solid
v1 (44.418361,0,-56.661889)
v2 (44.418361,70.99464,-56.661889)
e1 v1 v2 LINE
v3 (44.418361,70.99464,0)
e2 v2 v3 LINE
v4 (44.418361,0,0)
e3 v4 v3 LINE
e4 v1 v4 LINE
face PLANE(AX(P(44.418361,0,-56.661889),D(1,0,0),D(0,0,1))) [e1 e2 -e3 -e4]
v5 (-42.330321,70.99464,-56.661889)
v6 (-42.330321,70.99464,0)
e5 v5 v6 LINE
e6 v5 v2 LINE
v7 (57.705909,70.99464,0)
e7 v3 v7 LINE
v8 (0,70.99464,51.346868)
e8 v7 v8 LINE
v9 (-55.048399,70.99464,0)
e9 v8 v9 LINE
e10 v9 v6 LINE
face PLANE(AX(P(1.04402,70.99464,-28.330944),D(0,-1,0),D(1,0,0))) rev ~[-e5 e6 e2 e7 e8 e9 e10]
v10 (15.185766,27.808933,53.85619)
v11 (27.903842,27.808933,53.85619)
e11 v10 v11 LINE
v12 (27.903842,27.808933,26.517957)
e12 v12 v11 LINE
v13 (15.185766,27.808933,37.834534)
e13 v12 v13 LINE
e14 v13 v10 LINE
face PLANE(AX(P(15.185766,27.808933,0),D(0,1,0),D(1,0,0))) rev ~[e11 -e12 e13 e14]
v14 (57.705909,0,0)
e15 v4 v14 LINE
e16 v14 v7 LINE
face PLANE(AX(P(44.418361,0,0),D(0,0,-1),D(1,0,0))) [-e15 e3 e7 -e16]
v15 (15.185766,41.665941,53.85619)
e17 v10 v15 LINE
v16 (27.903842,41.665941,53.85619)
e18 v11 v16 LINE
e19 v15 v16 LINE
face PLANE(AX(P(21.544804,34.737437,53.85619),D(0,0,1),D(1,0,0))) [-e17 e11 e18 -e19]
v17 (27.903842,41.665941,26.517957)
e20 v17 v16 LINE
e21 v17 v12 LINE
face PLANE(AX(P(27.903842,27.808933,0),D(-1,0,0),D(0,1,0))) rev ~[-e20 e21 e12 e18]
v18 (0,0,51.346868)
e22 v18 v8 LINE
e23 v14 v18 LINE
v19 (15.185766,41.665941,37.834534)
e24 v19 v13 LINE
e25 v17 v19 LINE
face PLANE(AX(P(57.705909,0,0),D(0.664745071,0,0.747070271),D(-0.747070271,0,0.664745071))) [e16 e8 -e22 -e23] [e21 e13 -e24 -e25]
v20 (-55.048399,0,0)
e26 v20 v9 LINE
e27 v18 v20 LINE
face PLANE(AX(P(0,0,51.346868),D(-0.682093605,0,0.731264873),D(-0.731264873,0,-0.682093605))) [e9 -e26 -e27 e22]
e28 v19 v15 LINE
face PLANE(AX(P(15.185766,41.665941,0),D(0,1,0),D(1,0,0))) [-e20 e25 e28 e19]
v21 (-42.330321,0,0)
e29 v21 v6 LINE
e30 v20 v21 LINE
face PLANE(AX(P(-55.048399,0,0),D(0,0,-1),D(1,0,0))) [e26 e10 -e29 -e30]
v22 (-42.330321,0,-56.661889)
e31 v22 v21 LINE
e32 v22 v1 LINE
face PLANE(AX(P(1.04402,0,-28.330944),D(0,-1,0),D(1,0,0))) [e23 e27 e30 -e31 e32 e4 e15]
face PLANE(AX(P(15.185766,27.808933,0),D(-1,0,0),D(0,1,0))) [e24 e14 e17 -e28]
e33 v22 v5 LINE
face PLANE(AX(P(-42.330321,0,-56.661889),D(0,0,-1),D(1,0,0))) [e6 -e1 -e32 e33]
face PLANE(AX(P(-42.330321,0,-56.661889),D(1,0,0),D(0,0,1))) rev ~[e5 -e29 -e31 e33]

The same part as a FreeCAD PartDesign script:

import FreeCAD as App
import Part
import Sketcher

V = App.Vector


def add_polygon(sketch, points):
    """Adds a closed chain of lines whose ends are joined by coincident constraints."""
    first, n = sketch.GeometryCount, len(points)
    for a, b in zip(points, points[1:] + points[:1]):
        sketch.addGeometry(Part.LineSegment(App.Vector(*a, 0), App.Vector(*b, 0)), False)
    for i in range(n):
        sketch.addConstraint(Sketcher.Constraint("Coincident", first + i, 2, first + (i + 1) % n, 1))

doc = App.newDocument("Part")
params = doc.addObject("Spreadsheet::Sheet", "Params")
for row, (alias, value) in enumerate([
    ("pad1_length", "70.99464 mm"),
    ("pad2_length", "53.85619 mm"),
], start=1):
    params.set(f"A{row}", alias)
    params.set(f"B{row}", "=" + value)
    params.setAlias(f"B{row}", alias)

body = doc.addObject("PartDesign::Body", "Body")

# Sketch on XZ plane
sketch1 = body.newObject("Sketcher::SketchObject", "Sketch")
sketch1.AttachmentSupport = (doc.getObject("XZ_Plane"), [""])
sketch1.MapMode = "FlatFace"
add_polygon(sketch1, [(-42.330321, 0), (-42.330321, -56.661889), (44.418361, -56.661889), (44.418361, 0), (57.705909, 0), (0, 51.346868), (-55.048399, 0)])  # lines 0-6
sketch1.addConstraint(Sketcher.Constraint("Vertical", 0))
sketch1.addConstraint(Sketcher.Constraint("Horizontal", 1))
sketch1.addConstraint(Sketcher.Constraint("Vertical", 2))
sketch1.addConstraint(Sketcher.Constraint("Horizontal", 3))
sketch1.addConstraint(Sketcher.Constraint("Horizontal", 6))
sketch1.addConstraint(Sketcher.Constraint("PointOnObject", 2, 2, -1))
sketch1.addConstraint(Sketcher.Constraint("PointOnObject", 4, 2, -2))
sketch1.addConstraint(Sketcher.Constraint("PointOnObject", 5, 2, -1))
sketch1.addConstraint(Sketcher.Constraint("DistanceX", 3, 1, 3, 2, 13.287548))
sketch1.addConstraint(Sketcher.Constraint("DistanceX", 6, 1, 6, 2, 12.718078))
sketch1.addConstraint(Sketcher.Constraint("DistanceY", 0, 2, 0, 1, 56.661889))
sketch1.addConstraint(Sketcher.Constraint("DistanceX", 5, 2, -1, 1, 55.048399))
sketch1.addConstraint(Sketcher.Constraint("Distance", 5, 75.278331))
sketch1.addConstraint(Sketcher.Constraint("DistanceX", 1, 1, 1, 2, 86.748682))
pad1 = body.newObject("PartDesign::Pad", "Pad")
pad1.Profile = sketch1
pad1.setExpression("Length", "Params.pad1_length")
pad1.Reversed = True

# Sketch on XY plane
sketch2 = body.newObject("Sketcher::SketchObject", "Sketch001")
sketch2.AttachmentSupport = (doc.getObject("XY_Plane"), [""])
sketch2.MapMode = "FlatFace"
add_polygon(sketch2, [(15.185766, 41.665941), (15.185766, 27.808933), (27.903842, 27.808933), (27.903842, 41.665941)])  # lines 0-3
sketch2.addConstraint(Sketcher.Constraint("Vertical", 0))
sketch2.addConstraint(Sketcher.Constraint("Horizontal", 1))
sketch2.addConstraint(Sketcher.Constraint("Vertical", 2))
sketch2.addConstraint(Sketcher.Constraint("Horizontal", 3))
sketch2.addConstraint(Sketcher.Constraint("DistanceX", 1, 1, 1, 2, 12.718076))
sketch2.addConstraint(Sketcher.Constraint("DistanceY", 0, 2, 0, 1, 13.857008))
sketch2.addConstraint(Sketcher.Constraint("DistanceY", -1, 1, 2, 2, 41.665941))
sketch2.addConstraint(Sketcher.Constraint("DistanceX", -1, 1, 0, 2, 15.185766))
pad2 = body.newObject("PartDesign::Pad", "Pad001")
pad2.Profile = sketch2
pad2.setExpression("Length", "Params.pad2_length")

doc.recompute()
